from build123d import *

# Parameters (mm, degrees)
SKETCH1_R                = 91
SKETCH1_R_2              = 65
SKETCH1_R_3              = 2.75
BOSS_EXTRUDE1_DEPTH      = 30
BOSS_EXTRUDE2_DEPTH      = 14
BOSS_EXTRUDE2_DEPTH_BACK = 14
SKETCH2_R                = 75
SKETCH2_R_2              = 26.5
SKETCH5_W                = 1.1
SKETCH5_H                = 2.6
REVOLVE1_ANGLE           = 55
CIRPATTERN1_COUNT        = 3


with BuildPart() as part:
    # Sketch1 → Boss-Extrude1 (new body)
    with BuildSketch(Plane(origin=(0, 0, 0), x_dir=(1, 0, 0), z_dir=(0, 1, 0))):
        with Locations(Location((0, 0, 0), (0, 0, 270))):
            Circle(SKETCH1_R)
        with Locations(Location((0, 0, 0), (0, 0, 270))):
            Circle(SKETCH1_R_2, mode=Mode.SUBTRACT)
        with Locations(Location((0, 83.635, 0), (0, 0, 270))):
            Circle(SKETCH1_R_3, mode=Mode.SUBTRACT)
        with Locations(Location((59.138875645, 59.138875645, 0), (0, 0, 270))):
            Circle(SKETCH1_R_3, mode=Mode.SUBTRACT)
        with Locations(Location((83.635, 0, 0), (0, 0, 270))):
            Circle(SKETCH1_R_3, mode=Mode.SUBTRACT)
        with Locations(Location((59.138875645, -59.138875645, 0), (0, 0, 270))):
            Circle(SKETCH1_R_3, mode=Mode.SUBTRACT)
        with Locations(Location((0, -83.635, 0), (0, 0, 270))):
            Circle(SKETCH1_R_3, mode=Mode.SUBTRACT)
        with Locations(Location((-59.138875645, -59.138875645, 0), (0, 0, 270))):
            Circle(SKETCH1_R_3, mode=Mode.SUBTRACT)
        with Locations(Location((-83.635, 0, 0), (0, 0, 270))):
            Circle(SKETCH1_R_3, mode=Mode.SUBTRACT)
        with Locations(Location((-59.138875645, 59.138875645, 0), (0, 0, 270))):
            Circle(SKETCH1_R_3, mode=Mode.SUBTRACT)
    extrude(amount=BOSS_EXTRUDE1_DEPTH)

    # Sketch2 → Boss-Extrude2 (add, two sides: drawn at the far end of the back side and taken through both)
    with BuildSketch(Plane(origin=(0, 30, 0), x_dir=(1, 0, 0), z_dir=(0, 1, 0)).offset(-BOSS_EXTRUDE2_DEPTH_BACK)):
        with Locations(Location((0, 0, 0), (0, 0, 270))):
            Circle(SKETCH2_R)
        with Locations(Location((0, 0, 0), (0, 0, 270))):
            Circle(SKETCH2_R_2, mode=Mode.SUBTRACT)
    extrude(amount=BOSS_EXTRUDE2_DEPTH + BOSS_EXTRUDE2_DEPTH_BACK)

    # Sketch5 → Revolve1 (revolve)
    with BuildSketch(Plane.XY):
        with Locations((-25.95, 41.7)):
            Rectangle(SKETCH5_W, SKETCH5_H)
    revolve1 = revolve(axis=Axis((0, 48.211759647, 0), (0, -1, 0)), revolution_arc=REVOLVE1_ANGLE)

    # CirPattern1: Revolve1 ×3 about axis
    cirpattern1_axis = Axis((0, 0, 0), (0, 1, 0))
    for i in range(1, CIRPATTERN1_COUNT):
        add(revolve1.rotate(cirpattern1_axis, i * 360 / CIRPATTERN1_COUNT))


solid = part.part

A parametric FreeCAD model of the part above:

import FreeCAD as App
import Part
import Sketcher

V = App.Vector
Q = App.Units.Quantity


def add_polygon(sketch, points):
    """Adds a closed chain of lines whose ends are joined by coincident constraints."""
    first, n = sketch.GeometryCount, len(points)
    for a, b in zip(points, points[1:] + points[:1]):
        sketch.addGeometry(Part.LineSegment(App.Vector(*a, 0), App.Vector(*b, 0)), False)
    for i in range(n):
        sketch.addConstraint(Sketcher.Constraint("Coincident", first + i, 2, first + (i + 1) % n, 1))

doc = App.newDocument("Part")
body = doc.addObject("PartDesign::Body", "Body")

# Sketch on XZ plane
sketch1 = doc.addObject("Sketcher::SketchObject", "Sketch")
body.addObject(sketch1)
sketch1.AttachmentSupport = (doc.XZ_Plane, [""])
sketch1.MapMode = "FlatFace"
sketch1.addGeometry([
    Part.Circle(V(0, 0, 0), V(0, 0, 1), 91),  # 0
    Part.Circle(V(-59.138876, -59.138876, 0), V(0, 0, 1), 2.75),  # 1
    Part.Circle(V(0, -83.635, 0), V(0, 0, 1), 2.75),  # 2
    Part.Circle(V(-83.635, 0, 0), V(0, 0, 1), 2.75),  # 3
    Part.Circle(V(-59.138876, 59.138876, 0), V(0, 0, 1), 2.75),  # 4
    Part.Circle(V(59.138876, -59.138876, 0), V(0, 0, 1), 2.75),  # 5
    Part.Circle(V(83.635, 0, 0), V(0, 0, 1), 2.75),  # 6
    Part.Circle(V(0, 0, 0), V(0, 0, 1), 65),  # 7
    Part.Circle(V(0, 83.635, 0), V(0, 0, 1), 2.75),  # 8
    Part.Circle(V(59.138876, 59.138876, 0), V(0, 0, 1), 2.75),  # 9
], False)
sketch1.addConstraint([
    Sketcher.Constraint("Coincident", 0, 3, -1, 1),
    Sketcher.Constraint("Coincident", 7, 3, -1, 1),
    Sketcher.Constraint("Equal", 1, 2),
    Sketcher.Constraint("Equal", 2, 3),
    Sketcher.Constraint("Equal", 3, 4),
    Sketcher.Constraint("Equal", 4, 5),
    Sketcher.Constraint("Equal", 5, 6),
    Sketcher.Constraint("Equal", 6, 8),
    Sketcher.Constraint("Equal", 8, 9),
    Sketcher.Constraint("Symmetric", 4, 3, 5, 3, -1, 1),
    Sketcher.Constraint("Symmetric", 3, 3, 6, 3, -1, 1),
    Sketcher.Constraint("Symmetric", 2, 3, 8, 3, -1, 1),
    Sketcher.Constraint("Symmetric", 1, 3, 9, 3, -1, 1),
    Sketcher.Constraint("Symmetric", 1, 3, 5, 3, -2),
    Sketcher.Constraint("PointOnObject", 2, 3, -2),
    Sketcher.Constraint("PointOnObject", 3, 3, -1),
    Sketcher.Constraint("Diameter", 0, Q("182 mm")),
    Sketcher.Constraint("Diameter", 7, Q("130 mm")),
    Sketcher.Constraint("Diameter", 1, Q("5.5 mm")),
    Sketcher.Constraint("DistanceY", 2, 3, -1, 1, Q("83.635 mm")),
    Sketcher.Constraint("DistanceX", 3, 3, -1, 1, Q("83.635 mm")),
    Sketcher.Constraint("DistanceY", 1, 3, 4, 3, Q("118.277751 mm")),
    Sketcher.Constraint("DistanceX", 1, 3, 5, 3, Q("118.277751 mm")),
])
pad1 = doc.addObject("PartDesign::Pad", "Pad")
body.addObject(pad1)
pad1.Profile = sketch1
pad1.Length = 30
pad1.Reversed = True

# Sketch on XZ plane
sketch2 = doc.addObject("Sketcher::SketchObject", "Sketch001")
body.addObject(sketch2)
sketch2.AttachmentSupport = (doc.XZ_Plane, [""])
sketch2.MapMode = "FlatFace"
sketch2.AttachmentOffset = App.Placement(V(0, 0, -30), App.Rotation())
sketch2.addGeometry([
    Part.Circle(V(0, 0, 0), V(0, 0, 1), 75),
    Part.Circle(V(0, 0, 0), V(0, 0, 1), 26.5),
], False)
sketch2.addConstraint([
    Sketcher.Constraint("Coincident", 0, 3, -1, 1),
    Sketcher.Constraint("Coincident", 1, 3, -1, 1),
    Sketcher.Constraint("Diameter", 0, Q("150 mm")),
    Sketcher.Constraint("Diameter", 1, Q("53 mm")),
])
pad2 = doc.addObject("PartDesign::Pad", "Pad001")
body.addObject(pad2)
pad2.Profile = sketch2
pad2.Type = "TwoLengths"
pad2.Length = 14
pad2.Length2 = 14
pad2.Reversed = True

# Sketch on XY plane
sketch3 = doc.addObject("Sketcher::SketchObject", "Sketch002")
body.addObject(sketch3)
sketch3.AttachmentSupport = (doc.XY_Plane, [""])
sketch3.MapMode = "FlatFace"
add_polygon(sketch3, [(-26.5, 43), (-26.5, 40.4), (-25.4, 40.4), (-25.4, 43)])  # lines 0-3
sketch3.addConstraint([
    Sketcher.Constraint("Vertical", 0),
    Sketcher.Constraint("Horizontal", 1),
    Sketcher.Constraint("Vertical", 2),
    Sketcher.Constraint("Horizontal", 3),
    Sketcher.Constraint("DistanceX", 1, 1, 1, 2, Q("1.1 mm")),
    Sketcher.Constraint("DistanceY", 0, 2, 0, 1, Q("2.6 mm")),
    Sketcher.Constraint("DistanceY", -1, 1, 2, 2, Q("43 mm")),
    Sketcher.Constraint("DistanceX", 0, 2, -1, 1, Q("26.5 mm")),
])
revolution = doc.addObject("PartDesign::Revolution", "Revolution")
body.addObject(revolution)
revolution.Profile = sketch3
revolution.ReferenceAxis = (sketch3, ["V_Axis"])
revolution.Angle = 55
revolution.Reversed = True
doc.recompute()

polarpattern = doc.addObject("PartDesign::PolarPattern", "PolarPattern")
body.addObject(polarpattern)
polarpattern.Originals = [revolution]
polarpattern.Axis = (doc.Y_Axis, [""])
polarpattern.Angle = 360
polarpattern.Occurrences = 3
body.Tip = polarpattern

doc.recompute()
